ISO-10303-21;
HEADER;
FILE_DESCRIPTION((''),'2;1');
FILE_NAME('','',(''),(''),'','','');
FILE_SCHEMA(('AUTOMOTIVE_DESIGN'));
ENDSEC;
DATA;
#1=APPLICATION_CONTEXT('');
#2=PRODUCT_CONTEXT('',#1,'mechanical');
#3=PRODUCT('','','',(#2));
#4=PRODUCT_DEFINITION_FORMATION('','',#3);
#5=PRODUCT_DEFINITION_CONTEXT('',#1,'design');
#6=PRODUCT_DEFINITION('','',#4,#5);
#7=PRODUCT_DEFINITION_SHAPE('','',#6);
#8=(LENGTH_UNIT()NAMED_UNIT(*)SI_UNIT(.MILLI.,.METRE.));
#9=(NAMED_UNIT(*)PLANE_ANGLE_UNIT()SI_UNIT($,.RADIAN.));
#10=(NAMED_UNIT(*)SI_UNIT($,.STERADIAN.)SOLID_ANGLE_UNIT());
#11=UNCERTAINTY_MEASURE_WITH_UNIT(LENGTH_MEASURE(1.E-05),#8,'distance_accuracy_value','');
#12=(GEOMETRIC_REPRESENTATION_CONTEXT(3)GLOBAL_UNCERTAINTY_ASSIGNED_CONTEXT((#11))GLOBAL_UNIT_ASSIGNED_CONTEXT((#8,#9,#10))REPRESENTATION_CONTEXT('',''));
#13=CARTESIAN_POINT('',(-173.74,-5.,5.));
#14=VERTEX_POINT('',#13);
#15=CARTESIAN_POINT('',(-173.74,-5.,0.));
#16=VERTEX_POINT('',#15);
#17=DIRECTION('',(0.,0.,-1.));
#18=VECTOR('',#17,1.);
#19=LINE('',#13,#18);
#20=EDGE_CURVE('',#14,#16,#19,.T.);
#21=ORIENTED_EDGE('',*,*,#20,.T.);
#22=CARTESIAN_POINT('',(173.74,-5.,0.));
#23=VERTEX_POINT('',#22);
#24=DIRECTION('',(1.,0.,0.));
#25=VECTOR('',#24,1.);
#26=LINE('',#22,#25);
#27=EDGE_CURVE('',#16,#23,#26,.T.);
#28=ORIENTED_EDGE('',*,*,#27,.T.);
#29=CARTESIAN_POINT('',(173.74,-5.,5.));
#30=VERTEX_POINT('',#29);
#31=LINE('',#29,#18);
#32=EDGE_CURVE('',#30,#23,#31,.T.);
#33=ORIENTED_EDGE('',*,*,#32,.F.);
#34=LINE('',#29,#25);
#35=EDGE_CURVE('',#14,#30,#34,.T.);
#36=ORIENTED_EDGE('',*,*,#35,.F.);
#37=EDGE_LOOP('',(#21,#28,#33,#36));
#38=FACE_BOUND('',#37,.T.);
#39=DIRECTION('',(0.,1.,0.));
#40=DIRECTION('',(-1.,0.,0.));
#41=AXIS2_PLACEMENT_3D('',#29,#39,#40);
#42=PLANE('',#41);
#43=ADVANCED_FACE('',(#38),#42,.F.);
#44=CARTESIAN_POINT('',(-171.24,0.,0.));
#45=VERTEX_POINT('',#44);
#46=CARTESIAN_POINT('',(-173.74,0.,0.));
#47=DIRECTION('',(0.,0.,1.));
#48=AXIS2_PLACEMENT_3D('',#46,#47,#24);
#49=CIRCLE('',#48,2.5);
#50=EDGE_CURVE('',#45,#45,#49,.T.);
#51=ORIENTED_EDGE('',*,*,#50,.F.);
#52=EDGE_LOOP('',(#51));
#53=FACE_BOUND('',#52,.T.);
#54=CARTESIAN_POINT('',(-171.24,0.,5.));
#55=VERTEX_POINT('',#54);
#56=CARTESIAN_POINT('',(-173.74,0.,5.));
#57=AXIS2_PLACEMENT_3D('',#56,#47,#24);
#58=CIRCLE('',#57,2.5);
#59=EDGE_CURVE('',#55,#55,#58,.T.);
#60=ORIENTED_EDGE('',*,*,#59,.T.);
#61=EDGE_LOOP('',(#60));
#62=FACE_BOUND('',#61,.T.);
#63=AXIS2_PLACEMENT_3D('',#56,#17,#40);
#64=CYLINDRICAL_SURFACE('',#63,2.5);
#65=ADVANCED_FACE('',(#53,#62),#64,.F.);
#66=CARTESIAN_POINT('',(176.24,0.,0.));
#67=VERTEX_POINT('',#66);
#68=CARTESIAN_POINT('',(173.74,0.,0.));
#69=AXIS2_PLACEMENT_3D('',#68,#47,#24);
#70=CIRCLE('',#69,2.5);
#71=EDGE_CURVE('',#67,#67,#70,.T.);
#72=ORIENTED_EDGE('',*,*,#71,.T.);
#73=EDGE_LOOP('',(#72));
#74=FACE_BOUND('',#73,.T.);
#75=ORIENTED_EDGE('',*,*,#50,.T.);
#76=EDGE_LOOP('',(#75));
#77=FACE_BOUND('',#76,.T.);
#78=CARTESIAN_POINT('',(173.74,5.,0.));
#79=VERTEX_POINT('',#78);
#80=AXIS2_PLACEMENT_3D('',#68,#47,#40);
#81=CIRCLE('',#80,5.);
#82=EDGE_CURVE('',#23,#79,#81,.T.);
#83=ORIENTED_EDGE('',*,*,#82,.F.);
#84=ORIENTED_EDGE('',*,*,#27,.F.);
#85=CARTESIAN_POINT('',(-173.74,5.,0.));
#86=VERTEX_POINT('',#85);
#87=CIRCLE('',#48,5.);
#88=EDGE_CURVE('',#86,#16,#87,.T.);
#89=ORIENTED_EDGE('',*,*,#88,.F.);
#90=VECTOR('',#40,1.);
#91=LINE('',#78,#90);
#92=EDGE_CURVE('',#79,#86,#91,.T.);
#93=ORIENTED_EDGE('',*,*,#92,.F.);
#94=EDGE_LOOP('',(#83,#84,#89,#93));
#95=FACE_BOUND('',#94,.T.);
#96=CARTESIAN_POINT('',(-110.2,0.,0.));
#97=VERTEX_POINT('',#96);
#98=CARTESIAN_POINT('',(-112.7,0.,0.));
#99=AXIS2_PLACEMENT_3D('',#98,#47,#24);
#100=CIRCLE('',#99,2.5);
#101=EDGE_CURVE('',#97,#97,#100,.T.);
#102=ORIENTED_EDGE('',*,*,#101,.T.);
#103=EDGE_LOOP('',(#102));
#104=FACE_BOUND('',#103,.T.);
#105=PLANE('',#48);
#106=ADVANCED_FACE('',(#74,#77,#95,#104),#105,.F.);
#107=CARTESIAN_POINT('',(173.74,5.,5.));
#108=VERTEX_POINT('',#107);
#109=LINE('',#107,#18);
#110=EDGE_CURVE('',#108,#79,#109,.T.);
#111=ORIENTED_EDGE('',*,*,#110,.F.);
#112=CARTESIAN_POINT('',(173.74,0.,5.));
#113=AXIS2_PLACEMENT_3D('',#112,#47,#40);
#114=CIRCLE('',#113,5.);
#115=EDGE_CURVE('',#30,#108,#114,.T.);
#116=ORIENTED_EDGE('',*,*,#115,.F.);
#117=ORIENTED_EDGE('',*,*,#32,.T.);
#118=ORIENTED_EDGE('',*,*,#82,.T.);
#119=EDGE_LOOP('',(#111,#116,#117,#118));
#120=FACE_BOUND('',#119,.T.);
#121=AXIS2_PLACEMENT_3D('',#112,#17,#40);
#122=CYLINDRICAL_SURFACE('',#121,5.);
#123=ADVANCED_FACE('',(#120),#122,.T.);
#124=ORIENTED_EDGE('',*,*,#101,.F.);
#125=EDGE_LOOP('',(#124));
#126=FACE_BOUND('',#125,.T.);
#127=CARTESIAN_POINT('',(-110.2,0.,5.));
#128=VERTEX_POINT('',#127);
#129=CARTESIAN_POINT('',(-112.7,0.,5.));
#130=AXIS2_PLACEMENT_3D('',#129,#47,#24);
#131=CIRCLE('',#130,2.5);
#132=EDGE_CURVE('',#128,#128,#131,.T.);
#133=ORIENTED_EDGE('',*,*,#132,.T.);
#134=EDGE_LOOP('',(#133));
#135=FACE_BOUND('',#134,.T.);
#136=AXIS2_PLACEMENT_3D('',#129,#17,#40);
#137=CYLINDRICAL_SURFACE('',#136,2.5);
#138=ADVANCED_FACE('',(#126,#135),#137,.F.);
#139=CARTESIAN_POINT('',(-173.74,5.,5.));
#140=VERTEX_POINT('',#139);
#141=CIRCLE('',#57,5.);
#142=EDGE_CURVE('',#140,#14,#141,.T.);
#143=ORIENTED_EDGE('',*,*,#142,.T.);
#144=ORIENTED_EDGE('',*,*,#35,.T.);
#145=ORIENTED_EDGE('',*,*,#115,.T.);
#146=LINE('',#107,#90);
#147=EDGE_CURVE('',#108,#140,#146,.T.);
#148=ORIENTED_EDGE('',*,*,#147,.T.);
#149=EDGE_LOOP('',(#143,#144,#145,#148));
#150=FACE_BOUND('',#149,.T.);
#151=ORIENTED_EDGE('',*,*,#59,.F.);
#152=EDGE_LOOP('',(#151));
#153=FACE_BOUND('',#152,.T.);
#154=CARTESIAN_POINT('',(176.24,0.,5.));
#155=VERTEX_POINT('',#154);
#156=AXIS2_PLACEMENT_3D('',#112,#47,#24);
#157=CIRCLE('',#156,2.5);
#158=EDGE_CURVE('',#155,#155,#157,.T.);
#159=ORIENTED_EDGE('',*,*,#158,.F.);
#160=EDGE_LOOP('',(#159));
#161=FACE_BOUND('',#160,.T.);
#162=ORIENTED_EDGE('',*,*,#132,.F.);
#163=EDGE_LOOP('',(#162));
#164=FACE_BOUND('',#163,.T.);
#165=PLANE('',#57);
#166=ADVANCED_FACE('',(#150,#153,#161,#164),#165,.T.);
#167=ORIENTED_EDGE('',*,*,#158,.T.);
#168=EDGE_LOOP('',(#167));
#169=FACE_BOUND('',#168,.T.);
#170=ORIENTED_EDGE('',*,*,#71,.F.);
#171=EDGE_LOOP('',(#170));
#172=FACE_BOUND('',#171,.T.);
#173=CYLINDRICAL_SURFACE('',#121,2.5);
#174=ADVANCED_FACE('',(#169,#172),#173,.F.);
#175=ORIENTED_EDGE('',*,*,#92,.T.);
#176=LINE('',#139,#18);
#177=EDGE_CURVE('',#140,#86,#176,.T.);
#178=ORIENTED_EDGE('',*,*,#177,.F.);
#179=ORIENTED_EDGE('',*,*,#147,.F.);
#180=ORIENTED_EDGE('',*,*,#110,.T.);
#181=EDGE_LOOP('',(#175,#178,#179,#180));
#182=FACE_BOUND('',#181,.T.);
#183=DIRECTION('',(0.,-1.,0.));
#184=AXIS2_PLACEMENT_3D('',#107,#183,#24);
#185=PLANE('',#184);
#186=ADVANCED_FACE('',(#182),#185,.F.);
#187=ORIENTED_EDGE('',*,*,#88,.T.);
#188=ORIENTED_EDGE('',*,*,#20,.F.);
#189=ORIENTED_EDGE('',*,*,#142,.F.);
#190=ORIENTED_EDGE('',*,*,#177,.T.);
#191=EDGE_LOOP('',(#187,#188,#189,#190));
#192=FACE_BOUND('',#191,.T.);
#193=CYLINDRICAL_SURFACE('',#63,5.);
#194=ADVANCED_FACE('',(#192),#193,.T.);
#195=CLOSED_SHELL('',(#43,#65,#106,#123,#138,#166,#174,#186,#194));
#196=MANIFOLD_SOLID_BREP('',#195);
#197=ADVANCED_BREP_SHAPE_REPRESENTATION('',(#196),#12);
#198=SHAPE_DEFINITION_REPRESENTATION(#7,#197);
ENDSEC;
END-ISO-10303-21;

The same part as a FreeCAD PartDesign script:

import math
import FreeCAD as App
import Part
import Sketcher
from FreeCAD import Vector

doc = App.newDocument("Part")
body = doc.addObject("PartDesign::Body", "Body")

# Sketch on XY plane
sketch1 = body.newObject("Sketcher::SketchObject", "Sketch")
sketch1.AttachmentSupport = (doc.getObject("XY_Plane"), [""])
sketch1.MapMode = "FlatFace"
sketch1.addGeometry([
    Part.LineSegment(Vector(173.7, 5, 0), Vector(-173.7, 5, 0)),  # 0
    Part.ArcOfCircle(Part.Circle(Vector(-173.7, 0, 0), Vector(0, 0, 1), 5), math.radians(90), math.radians(270)),  # 1
    Part.LineSegment(Vector(-173.7, -5, 0), Vector(173.7, -5, 0)),  # 2
    Part.ArcOfCircle(Part.Circle(Vector(173.7, 0, 0), Vector(0, 0, 1), 5), math.radians(-90), math.radians(90)),  # 3
    Part.Circle(Vector(-173.7, 0, 0), Vector(0, 0, 1), 2.5),  # 4
    Part.Circle(Vector(-112.7, 0, 0), Vector(0, 0, 1), 2.5),  # 5
    Part.Circle(Vector(173.7, 0, 0), Vector(0, 0, 1), 2.5),  # 6
], False)
sketch1.addConstraint([
    Sketcher.Constraint("Tangent", 0, 2, 1, 1),
    Sketcher.Constraint("Tangent", 1, 2, 2, 1),
    Sketcher.Constraint("Tangent", 2, 2, 3, 1),
    Sketcher.Constraint("Tangent", 3, 2, 0, 1),
    Sketcher.Constraint("Horizontal", 0),
    Sketcher.Constraint("Horizontal", 2),
    Sketcher.Constraint("Coincident", 4, 3, 1, 3),
    Sketcher.Constraint("Coincident", 6, 3, 3, 3),
    Sketcher.Constraint("Equal", 4, 5),
    Sketcher.Constraint("Equal", 5, 6),
    Sketcher.Constraint("Symmetric", 1, 3, 3, 3, -1, 1),
    Sketcher.Constraint("PointOnObject", 5, 3, -1),
    Sketcher.Constraint("Diameter", 4, 5.0),
    Sketcher.Constraint("Radius", 1, 5.0),
    Sketcher.Constraint("DistanceX", 0, 2, 0, 1, 347.48),
    Sketcher.Constraint("DistanceX", 5, 3, -1, 1, 112.7),
])
pad1 = body.newObject("PartDesign::Pad", "Pad")
pad1.Profile = sketch1
pad1.Length = 5

doc.recompute()
